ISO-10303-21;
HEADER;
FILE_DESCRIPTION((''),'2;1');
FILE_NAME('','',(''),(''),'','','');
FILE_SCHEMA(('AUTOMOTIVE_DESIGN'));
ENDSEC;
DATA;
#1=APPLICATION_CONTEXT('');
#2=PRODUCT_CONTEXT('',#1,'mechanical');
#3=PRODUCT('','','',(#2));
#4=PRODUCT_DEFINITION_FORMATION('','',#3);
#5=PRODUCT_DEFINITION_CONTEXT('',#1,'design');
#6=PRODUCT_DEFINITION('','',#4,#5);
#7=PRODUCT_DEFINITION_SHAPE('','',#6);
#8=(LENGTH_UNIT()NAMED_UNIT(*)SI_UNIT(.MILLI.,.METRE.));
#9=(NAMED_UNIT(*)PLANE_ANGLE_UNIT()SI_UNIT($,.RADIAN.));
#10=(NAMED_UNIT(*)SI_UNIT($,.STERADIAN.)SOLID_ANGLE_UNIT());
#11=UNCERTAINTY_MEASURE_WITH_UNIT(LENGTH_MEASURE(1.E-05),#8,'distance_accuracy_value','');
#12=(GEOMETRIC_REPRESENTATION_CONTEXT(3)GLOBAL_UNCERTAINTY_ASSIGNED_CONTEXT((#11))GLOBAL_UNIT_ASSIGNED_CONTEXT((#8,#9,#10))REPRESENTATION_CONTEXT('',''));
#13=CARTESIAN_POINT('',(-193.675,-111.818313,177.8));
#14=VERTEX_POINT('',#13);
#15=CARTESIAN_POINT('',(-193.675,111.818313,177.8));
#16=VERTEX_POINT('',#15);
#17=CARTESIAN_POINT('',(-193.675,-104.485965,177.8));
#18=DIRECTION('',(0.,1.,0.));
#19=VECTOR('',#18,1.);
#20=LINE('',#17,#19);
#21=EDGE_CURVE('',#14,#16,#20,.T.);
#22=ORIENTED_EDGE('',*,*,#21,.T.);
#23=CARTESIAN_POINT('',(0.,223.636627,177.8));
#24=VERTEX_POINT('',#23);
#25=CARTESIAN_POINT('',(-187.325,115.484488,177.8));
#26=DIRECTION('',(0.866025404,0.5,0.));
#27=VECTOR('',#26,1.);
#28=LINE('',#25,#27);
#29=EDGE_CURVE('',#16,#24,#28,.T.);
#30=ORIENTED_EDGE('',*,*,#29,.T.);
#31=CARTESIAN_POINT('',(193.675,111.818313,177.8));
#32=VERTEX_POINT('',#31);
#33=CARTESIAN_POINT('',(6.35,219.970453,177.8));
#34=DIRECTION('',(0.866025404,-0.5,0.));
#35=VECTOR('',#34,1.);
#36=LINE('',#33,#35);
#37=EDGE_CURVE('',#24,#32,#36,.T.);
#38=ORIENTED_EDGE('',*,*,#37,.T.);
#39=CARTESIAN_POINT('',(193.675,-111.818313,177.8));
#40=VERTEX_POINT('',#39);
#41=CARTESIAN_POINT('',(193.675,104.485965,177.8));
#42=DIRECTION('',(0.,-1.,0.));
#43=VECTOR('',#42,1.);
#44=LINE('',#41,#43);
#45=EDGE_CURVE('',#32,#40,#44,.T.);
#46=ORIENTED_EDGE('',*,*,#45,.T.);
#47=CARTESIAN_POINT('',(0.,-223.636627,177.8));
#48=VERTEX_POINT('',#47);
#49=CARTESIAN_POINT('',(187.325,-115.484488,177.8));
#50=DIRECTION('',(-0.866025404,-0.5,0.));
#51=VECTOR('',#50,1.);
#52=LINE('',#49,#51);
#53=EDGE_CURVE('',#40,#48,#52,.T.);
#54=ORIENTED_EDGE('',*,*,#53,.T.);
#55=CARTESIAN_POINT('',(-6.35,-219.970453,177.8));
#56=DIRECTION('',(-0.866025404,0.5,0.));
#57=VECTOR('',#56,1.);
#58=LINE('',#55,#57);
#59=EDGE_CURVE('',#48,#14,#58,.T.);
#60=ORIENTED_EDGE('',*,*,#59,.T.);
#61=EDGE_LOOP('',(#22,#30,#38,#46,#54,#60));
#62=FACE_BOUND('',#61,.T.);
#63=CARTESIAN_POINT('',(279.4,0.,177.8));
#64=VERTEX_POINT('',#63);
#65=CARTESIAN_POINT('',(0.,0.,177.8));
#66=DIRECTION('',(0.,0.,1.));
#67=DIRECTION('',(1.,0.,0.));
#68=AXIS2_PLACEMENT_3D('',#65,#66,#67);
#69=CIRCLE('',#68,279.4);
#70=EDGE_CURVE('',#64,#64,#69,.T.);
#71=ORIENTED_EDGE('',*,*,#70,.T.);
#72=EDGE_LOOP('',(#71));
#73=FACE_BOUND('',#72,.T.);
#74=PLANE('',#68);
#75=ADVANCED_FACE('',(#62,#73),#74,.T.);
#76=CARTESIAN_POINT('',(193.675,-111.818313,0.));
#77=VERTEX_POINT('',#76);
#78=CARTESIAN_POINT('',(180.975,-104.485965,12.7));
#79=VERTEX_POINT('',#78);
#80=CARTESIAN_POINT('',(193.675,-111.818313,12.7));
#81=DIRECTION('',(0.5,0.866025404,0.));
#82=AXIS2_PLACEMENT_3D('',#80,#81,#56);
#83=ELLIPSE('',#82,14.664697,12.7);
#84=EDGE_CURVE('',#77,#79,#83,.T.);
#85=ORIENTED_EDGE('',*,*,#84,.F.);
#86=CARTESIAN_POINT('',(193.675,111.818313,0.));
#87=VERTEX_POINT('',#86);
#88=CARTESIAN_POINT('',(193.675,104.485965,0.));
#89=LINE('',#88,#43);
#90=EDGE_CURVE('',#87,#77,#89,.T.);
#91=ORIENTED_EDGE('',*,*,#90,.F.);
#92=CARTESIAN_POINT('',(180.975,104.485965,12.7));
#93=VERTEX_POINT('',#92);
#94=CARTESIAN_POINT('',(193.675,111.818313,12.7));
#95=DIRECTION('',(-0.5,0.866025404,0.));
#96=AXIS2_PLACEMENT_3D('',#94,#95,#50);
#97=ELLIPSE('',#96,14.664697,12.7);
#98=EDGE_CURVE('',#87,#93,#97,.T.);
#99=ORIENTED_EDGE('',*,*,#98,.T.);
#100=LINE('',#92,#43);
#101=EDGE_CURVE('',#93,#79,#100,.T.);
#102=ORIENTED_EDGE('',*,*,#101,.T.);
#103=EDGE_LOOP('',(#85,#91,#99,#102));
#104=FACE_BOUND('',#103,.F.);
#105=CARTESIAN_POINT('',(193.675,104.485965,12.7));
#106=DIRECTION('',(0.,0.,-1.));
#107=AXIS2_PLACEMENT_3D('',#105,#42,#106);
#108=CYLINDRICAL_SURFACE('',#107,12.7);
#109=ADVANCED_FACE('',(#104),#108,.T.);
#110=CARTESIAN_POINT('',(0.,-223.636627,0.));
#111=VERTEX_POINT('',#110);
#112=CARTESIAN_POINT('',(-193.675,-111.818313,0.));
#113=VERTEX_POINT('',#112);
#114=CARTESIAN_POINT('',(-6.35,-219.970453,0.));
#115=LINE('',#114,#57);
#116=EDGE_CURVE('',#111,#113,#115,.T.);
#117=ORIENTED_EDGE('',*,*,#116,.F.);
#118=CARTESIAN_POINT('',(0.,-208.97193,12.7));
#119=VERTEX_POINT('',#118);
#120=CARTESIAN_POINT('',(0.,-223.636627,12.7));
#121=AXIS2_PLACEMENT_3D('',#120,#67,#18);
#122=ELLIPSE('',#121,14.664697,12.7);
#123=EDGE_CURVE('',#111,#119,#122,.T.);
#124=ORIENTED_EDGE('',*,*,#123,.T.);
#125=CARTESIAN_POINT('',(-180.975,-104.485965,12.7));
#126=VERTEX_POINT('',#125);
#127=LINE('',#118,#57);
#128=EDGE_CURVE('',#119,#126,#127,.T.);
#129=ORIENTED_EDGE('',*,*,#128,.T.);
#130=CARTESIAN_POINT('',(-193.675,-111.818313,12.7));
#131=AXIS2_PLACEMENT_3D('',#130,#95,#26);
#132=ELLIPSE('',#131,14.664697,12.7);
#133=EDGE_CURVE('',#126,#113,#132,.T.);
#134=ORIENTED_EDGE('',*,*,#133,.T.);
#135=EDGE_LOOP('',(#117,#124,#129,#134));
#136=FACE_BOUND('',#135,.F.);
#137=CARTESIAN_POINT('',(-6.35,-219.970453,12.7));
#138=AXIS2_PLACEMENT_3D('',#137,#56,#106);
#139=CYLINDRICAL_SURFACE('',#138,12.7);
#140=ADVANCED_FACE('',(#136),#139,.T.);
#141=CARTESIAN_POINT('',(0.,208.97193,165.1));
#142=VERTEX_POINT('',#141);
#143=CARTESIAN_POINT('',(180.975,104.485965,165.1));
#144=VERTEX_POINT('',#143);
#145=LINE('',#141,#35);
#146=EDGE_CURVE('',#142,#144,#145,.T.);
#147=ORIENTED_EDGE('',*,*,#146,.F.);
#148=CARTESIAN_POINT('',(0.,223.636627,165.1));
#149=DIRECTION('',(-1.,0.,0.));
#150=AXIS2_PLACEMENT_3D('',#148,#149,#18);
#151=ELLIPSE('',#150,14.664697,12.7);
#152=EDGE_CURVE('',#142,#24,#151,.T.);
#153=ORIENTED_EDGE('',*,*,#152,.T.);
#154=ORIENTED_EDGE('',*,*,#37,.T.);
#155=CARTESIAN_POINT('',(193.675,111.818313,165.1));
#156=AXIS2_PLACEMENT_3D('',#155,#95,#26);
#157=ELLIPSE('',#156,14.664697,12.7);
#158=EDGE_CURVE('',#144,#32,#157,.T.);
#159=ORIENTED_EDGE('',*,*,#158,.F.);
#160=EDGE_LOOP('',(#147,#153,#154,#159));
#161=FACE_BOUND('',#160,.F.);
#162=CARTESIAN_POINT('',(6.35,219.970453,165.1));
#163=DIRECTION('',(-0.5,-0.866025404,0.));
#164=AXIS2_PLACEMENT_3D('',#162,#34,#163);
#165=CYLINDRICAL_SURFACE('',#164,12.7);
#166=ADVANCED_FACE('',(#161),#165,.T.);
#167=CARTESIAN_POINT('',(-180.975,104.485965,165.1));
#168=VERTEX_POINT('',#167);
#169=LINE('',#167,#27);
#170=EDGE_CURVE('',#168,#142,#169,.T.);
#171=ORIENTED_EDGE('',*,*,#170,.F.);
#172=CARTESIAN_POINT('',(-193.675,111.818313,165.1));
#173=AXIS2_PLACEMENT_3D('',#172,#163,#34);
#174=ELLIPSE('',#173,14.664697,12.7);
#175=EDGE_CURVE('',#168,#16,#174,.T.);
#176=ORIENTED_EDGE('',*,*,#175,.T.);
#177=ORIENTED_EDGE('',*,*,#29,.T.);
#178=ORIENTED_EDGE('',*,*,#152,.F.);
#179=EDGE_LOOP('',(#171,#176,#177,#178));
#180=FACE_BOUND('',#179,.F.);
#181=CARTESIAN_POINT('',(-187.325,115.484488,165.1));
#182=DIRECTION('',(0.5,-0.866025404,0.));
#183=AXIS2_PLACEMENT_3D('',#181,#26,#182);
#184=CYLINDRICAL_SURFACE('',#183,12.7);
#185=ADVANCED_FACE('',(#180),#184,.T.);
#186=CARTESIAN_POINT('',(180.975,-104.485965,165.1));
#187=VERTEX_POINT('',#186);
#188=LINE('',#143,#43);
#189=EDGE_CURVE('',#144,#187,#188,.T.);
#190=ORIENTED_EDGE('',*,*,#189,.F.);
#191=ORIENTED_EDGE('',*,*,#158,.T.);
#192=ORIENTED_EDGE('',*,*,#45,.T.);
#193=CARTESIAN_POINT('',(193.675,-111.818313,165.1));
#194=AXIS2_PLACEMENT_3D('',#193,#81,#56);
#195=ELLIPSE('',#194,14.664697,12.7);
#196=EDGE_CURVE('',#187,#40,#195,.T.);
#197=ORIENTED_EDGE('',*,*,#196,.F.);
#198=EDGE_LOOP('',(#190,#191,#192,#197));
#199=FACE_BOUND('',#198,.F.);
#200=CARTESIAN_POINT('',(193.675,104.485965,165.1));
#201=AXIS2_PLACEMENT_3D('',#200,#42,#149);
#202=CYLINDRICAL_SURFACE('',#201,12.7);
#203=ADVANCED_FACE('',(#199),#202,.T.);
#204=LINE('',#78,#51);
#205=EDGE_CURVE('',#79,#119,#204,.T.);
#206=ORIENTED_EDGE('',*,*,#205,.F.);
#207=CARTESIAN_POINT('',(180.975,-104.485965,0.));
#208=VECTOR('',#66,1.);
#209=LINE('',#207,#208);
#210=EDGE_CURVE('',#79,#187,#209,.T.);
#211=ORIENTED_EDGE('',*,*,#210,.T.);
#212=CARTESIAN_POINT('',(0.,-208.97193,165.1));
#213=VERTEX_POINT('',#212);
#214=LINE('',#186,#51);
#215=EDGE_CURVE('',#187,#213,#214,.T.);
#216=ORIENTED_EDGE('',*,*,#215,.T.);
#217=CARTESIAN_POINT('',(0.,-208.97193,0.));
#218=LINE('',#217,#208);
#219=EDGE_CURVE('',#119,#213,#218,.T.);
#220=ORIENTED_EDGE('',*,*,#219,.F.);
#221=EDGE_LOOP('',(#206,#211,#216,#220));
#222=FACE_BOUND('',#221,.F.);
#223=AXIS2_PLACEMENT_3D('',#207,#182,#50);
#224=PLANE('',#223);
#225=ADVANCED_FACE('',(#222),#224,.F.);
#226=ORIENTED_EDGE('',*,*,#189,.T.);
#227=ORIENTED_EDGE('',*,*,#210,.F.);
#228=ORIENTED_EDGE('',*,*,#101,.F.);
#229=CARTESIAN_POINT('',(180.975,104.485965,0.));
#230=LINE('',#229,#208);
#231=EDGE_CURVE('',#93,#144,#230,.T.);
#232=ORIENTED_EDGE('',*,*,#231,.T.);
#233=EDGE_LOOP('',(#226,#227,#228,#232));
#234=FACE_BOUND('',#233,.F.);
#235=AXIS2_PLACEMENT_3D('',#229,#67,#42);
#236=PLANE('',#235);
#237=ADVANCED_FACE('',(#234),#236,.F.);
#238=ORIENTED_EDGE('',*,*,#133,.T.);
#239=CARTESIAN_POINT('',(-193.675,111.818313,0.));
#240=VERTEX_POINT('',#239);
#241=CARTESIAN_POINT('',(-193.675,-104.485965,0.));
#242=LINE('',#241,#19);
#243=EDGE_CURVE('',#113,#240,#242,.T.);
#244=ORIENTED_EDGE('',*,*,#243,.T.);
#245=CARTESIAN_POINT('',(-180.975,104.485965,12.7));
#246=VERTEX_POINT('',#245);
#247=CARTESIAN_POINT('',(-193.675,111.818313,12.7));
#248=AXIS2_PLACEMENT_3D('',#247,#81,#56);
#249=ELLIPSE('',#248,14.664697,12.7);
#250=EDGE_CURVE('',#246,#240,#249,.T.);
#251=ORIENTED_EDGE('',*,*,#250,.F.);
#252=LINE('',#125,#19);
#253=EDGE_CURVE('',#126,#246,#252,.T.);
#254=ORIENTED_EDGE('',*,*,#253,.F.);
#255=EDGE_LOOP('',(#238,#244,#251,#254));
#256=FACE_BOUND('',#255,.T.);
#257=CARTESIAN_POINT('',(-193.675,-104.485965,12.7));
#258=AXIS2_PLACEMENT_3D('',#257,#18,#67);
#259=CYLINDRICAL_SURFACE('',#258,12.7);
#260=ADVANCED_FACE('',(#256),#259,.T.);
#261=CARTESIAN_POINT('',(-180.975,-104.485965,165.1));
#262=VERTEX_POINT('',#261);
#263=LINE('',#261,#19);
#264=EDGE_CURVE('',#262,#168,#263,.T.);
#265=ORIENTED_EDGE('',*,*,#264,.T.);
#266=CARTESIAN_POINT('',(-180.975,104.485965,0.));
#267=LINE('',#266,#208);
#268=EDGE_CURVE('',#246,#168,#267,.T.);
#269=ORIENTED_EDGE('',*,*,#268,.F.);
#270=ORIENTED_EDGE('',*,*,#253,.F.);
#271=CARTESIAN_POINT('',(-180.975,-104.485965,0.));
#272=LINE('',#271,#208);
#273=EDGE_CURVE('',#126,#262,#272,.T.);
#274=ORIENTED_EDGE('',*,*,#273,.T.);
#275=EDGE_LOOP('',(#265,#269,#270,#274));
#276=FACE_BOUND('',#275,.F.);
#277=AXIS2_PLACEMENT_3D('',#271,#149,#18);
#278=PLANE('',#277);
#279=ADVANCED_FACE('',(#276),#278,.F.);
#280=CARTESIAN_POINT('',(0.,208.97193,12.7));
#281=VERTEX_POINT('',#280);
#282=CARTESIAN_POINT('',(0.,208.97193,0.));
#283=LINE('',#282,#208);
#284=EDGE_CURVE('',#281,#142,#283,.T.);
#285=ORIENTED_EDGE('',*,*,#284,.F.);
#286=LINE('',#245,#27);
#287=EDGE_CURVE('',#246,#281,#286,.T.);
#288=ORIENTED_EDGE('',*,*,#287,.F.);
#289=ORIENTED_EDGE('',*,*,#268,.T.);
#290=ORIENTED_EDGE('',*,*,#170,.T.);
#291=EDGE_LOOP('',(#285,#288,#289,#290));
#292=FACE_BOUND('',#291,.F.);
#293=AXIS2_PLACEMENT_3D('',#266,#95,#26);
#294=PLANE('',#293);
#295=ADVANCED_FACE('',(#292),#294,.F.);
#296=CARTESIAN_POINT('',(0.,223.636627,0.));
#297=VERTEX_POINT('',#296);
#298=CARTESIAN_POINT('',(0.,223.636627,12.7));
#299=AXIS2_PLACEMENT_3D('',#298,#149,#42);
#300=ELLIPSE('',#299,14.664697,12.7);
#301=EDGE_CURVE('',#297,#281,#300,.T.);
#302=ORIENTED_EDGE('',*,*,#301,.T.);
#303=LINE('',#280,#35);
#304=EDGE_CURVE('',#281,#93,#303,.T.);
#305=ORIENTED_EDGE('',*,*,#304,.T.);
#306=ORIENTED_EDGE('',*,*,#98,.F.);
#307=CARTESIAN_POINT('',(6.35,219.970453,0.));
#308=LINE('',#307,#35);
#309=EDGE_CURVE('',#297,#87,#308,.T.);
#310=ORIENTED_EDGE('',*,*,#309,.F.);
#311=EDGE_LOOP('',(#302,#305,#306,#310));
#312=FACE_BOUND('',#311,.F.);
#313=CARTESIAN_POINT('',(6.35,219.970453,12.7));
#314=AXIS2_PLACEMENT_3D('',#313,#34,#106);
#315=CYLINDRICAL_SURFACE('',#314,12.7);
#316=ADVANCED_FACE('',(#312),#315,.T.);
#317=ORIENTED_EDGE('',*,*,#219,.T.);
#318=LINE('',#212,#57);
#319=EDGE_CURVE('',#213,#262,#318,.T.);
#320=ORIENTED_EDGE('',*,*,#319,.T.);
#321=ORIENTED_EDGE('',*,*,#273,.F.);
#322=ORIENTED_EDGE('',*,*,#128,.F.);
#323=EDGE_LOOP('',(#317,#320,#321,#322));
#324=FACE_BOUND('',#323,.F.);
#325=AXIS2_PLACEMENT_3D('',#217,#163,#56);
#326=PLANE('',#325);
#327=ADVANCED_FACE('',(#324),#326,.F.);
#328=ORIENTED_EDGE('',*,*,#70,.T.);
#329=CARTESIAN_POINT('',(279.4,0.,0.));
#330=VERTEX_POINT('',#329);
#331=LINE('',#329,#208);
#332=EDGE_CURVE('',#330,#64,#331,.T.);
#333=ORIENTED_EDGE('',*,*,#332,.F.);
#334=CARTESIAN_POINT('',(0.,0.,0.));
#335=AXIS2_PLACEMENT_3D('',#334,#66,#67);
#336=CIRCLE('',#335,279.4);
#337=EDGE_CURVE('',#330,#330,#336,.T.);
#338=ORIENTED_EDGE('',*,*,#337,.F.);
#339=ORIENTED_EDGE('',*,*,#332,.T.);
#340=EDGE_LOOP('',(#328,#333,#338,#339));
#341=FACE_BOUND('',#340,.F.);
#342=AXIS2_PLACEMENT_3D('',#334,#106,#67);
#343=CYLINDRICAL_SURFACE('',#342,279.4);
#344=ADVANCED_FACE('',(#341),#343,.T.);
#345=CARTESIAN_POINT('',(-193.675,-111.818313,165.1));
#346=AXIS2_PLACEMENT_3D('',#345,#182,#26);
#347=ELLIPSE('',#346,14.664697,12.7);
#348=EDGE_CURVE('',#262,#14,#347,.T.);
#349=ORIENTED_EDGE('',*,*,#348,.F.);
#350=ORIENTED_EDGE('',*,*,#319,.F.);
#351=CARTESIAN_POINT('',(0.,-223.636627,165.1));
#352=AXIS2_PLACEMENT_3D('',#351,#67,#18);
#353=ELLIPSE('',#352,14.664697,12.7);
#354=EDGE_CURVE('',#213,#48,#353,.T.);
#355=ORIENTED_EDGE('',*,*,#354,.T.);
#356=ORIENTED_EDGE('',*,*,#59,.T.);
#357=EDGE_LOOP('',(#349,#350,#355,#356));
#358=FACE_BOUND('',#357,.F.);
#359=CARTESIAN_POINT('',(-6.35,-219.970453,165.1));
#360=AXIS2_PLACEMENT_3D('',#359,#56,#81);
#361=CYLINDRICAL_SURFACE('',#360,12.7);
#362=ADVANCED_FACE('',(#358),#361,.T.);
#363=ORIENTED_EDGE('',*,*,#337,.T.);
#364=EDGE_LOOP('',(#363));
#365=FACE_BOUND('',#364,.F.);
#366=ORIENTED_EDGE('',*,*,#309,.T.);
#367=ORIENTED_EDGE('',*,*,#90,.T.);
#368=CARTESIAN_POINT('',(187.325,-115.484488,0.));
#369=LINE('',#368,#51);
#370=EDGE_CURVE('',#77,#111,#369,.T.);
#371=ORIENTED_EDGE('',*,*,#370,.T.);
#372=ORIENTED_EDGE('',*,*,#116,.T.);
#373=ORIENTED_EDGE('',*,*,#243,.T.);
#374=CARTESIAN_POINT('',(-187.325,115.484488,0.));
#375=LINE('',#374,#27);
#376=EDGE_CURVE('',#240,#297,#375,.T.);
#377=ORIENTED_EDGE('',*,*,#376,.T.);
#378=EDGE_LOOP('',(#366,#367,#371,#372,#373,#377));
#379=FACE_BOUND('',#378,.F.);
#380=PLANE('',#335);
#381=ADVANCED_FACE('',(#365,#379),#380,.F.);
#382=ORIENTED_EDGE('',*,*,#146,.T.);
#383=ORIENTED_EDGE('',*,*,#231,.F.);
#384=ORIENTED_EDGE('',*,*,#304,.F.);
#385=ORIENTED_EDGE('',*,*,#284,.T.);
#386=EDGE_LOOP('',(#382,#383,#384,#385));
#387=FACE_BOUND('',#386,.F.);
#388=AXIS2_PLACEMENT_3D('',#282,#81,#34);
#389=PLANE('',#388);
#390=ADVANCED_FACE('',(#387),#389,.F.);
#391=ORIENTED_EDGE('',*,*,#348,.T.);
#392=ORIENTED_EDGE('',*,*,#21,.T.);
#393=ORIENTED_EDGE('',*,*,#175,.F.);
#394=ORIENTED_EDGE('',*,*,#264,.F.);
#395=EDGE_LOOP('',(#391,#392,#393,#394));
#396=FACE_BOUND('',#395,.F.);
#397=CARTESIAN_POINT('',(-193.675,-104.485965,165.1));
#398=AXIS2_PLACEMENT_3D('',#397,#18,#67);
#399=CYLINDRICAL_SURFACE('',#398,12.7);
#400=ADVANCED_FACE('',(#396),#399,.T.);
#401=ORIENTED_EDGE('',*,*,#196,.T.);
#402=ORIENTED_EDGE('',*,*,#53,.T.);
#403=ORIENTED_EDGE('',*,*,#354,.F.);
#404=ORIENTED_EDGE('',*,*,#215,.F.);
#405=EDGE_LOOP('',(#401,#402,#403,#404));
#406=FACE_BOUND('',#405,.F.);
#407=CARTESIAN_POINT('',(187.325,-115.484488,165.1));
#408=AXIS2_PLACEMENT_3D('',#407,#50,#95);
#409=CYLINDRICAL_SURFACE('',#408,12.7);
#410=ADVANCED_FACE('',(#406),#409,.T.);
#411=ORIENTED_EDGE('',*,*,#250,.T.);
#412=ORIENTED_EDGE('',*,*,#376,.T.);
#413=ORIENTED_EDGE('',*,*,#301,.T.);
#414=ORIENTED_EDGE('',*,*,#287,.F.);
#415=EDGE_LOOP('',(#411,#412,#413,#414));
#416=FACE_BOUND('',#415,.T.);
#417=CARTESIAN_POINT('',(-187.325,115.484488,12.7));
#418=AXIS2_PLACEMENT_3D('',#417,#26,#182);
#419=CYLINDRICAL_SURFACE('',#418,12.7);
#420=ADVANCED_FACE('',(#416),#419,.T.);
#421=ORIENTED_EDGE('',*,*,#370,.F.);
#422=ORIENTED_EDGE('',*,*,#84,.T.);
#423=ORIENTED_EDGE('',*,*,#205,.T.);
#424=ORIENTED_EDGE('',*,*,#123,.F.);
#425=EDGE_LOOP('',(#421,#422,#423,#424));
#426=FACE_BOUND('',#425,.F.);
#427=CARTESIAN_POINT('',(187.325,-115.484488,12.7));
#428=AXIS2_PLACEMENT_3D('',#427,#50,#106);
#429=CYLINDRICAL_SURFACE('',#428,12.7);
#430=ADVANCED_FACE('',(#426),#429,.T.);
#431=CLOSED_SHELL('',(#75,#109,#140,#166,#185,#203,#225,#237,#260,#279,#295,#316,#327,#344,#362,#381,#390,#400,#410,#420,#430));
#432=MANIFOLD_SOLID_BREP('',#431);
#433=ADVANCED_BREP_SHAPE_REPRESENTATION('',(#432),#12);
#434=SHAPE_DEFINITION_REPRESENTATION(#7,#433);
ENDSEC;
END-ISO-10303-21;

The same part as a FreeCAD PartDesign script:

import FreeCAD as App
import Part
import Sketcher
Q = App.Units.Quantity


def edges_at(feature, points):
    """Names of the edges that pass closest to the given points."""
    edges = feature.Shape.Edges
    near = lambda p: min(range(len(edges)), key=lambda i: edges[i].distToShape(Part.Vertex(*p))[0])
    return sorted({f"Edge{near(p) + 1}" for p in points})


def add_polygon(sketch, points):
    """Adds a closed chain of lines whose ends are joined by coincident constraints."""
    first, n = sketch.GeometryCount, len(points)
    for a, b in zip(points, points[1:] + points[:1]):
        sketch.addGeometry(Part.LineSegment(App.Vector(*a, 0), App.Vector(*b, 0)), False)
    for i in range(n):
        sketch.addConstraint(Sketcher.Constraint("Coincident", first + i, 2, first + (i + 1) % n, 1))

doc = App.newDocument("Part")
body = doc.addObject("PartDesign::Body", "Body")

sketch1 = body.newObject("Sketcher::SketchObject", "Sketch")
sketch1.AttachmentSupport = (doc.getObject("XY_Plane"), [""])
sketch1.MapMode = "FlatFace"
sketch1.addGeometry(Part.Circle(App.Vector(0, 0, 0), App.Vector(0, 0, 1), 279), False)
add_polygon(sketch1, [(-181, 104), (0, 209), (181, 104), (181, -104), (0, -209), (-181, -104)])
sketch1.addConstraint([
    Sketcher.Constraint("Vertical", 3),
    Sketcher.Constraint("Vertical", 6),
    Sketcher.Constraint("Coincident", 0, 3, -1, 1),
    Sketcher.Constraint("Symmetric", 1, 2, 4, 2, -1, 1),
    Sketcher.Constraint("Symmetric", 2, 2, 5, 2, -1, 1),
    Sketcher.Constraint("PointOnObject", 1, 2, -2),
    Sketcher.Constraint("Parallel", 1, 4),
    Sketcher.Constraint("Horizontal", 3, 2, 5, 2),
    Sketcher.Constraint("Diameter", 0, Q("22 in")),
    Sketcher.Constraint("Angle", 1, Q("30 deg")),
    Sketcher.Constraint("DistanceX", 5, 2, 3, 2, Q("14.25 in")),
    Sketcher.Constraint("DistanceY", 3, 2, 3, 1, 208.97193),
])
pad1 = body.newObject("PartDesign::Pad", "Pad")
pad1.Profile = sketch1
pad1.Length = Q("7 in")
doc.recompute()

fillet = body.newObject("PartDesign::Fillet", "Fillet")
fillet.Base = (pad1, edges_at(pad1, [
    (-90.487, 156.729, 177.8),
    (90.487, 156.729, 177.8),
    (-180.975, 0, 177.8),
    (-90.487, -156.729, 177.8),
    (90.487, -156.729, 177.8),
    (180.975, 0, 177.8),
]))
fillet.Radius = Q("0.5 in")
doc.recompute()

fillet2 = body.newObject("PartDesign::Fillet", "Fillet001")
fillet2.Base = (fillet, edges_at(fillet, [
    (-180.975, 0, 0),
    (-90.487, -156.729, 0),
    (90.487, -156.729, 0),
    (180.975, 0, 0),
    (90.487, 156.729, 0),
    (-90.487, 156.729, 0),
]))
fillet2.Radius = Q("0.5 in")

doc.recompute()
